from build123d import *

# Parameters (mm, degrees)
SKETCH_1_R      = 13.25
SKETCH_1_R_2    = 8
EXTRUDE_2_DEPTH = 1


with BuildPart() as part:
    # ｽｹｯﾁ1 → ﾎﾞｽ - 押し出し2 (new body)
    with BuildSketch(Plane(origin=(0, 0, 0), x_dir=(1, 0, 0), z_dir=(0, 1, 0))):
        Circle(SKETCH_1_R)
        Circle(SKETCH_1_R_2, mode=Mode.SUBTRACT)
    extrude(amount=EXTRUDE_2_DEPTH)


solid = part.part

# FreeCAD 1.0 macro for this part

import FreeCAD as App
import Part
import Sketcher
Q = App.Units.Quantity

doc = App.newDocument("Part")
params = doc.addObject("Spreadsheet::Sheet", "Params")
for row, (alias, value) in enumerate([
    ("sketch1_diameter", "16 mm"),
    ("sketch1_diameter2", "26.5 mm"),
    ("pad1_length", "1 mm"),
], start=1):
    params.set(f"A{row}", alias)
    params.set(f"B{row}", "=" + value)
    params.setAlias(f"B{row}", alias)

body = doc.addObject("PartDesign::Body", "Body")

sketch1 = body.newObject("Sketcher::SketchObject", "Sketch")
sketch1.AttachmentSupport = (doc.getObject("XZ_Plane"), [""])
sketch1.MapMode = "FlatFace"
sketch1.addGeometry(Part.Circle(App.Vector(0, 0, 0), App.Vector(0, 0, 1), 13.25), False)
sketch1.addGeometry(Part.Circle(App.Vector(0, 0, 0), App.Vector(0, 0, 1), 8), False)
sketch1.addConstraint(Sketcher.Constraint("Coincident", 0, 3, -1, 1))
sketch1.addConstraint(Sketcher.Constraint("Coincident", 1, 3, -1, 1))
sketch1.addConstraint(Sketcher.Constraint("Diameter", 1, Q("16 mm")))
sketch1.addConstraint(Sketcher.Constraint("Diameter", 0, Q("26.5 mm")))
sketch1.setExpression("Constraints[2]", "Params.sketch1_diameter")
sketch1.setExpression("Constraints[3]", "Params.sketch1_diameter2")
pad1 = body.newObject("PartDesign::Pad", "Pad")
pad1.Profile = sketch1
pad1.setExpression("Length", "Params.pad1_length")
pad1.Reversed = True

doc.recompute()
